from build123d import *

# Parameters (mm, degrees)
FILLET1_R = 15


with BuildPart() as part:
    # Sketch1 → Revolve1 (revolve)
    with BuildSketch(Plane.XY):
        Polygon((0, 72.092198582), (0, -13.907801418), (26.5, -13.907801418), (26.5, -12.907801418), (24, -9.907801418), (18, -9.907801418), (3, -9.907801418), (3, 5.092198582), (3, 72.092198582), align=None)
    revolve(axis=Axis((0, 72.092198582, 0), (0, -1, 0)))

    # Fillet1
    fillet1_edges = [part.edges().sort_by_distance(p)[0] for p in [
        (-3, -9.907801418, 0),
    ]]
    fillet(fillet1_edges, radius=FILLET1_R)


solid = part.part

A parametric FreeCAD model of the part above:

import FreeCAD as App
import Part
import Sketcher


def edges_at(feature, points):
    """Names of the edges that pass closest to the given points."""
    edges = feature.Shape.Edges
    near = lambda p: min(range(len(edges)), key=lambda i: edges[i].distToShape(Part.Vertex(*p))[0])
    return sorted({f"Edge{near(p) + 1}" for p in points})

doc = App.newDocument("Part")
body = doc.addObject("PartDesign::Body", "Body")

sketch1 = doc.addObject("Sketcher::SketchObject", "Sketch")
body.addObject(sketch1)
sketch1.AttachmentSupport = (doc.XY_Plane, [""])
sketch1.MapMode = "FlatFace"
sketch1.addGeometry([
    Part.LineSegment(App.Vector(0, 72.1, 0), App.Vector(0, -13.9, 0)),
    Part.LineSegment(App.Vector(0, -13.9, 0), App.Vector(26.5, -13.9, 0)),
    Part.LineSegment(App.Vector(26.5, -13.9, 0), App.Vector(26.5, -12.9, 0)),
    Part.LineSegment(App.Vector(26.5, -12.9, 0), App.Vector(24, -9.9, 0)),
    Part.LineSegment(App.Vector(24, -9.9, 0), App.Vector(3, -9.9, 0)),
    Part.LineSegment(App.Vector(3, -9.9, 0), App.Vector(3, 72.1, 0)),
    Part.LineSegment(App.Vector(3, 72.1, 0), App.Vector(0, 72.1, 0)),
], False)
sketch1.addConstraint([
    Sketcher.Constraint("Coincident", 0, 2, 1, 1),
    Sketcher.Constraint("Coincident", 1, 2, 2, 1),
    Sketcher.Constraint("Coincident", 2, 2, 3, 1),
    Sketcher.Constraint("Coincident", 3, 2, 4, 1),
    Sketcher.Constraint("Coincident", 4, 2, 5, 1),
    Sketcher.Constraint("Coincident", 5, 2, 6, 1),
    Sketcher.Constraint("Coincident", 6, 2, 0, 1),
    Sketcher.Constraint("Vertical", 0),
    Sketcher.Constraint("Horizontal", 1),
    Sketcher.Constraint("Vertical", 2),
    Sketcher.Constraint("Horizontal", 4),
    Sketcher.Constraint("Vertical", 5),
    Sketcher.Constraint("Horizontal", 6),
    Sketcher.Constraint("PointOnObject", 0, 2, -2),
    Sketcher.Constraint("DistanceX", 4, 2, 4, 1, 21.0),
    Sketcher.Constraint("DistanceX", 6, 2, 6, 1, 3.0),
    Sketcher.Constraint("DistanceY", 0, 2, 0, 1, 86.0),
    Sketcher.Constraint("DistanceY", 2, 1, 2, 2, 1.0),
    Sketcher.Constraint("DistanceY", 5, 1, 5, 2, 82.0),
    Sketcher.Constraint("DistanceX", 1, 1, 1, 2, 26.5),
    Sketcher.Constraint("DistanceY", 0, 2, -1, 1, 13.907801),
])
revolution = doc.addObject("PartDesign::Revolution", "Revolution")
body.addObject(revolution)
revolution.Profile = sketch1
revolution.ReferenceAxis = (sketch1, ["V_Axis"])
revolution.Angle = 360
doc.recompute()

fillet = doc.addObject("PartDesign::Fillet", "Fillet")
body.addObject(fillet)
fillet.Base = (revolution, edges_at(revolution, [(-3, -9.908, 0)]))
fillet.Radius = 15

doc.recompute()
